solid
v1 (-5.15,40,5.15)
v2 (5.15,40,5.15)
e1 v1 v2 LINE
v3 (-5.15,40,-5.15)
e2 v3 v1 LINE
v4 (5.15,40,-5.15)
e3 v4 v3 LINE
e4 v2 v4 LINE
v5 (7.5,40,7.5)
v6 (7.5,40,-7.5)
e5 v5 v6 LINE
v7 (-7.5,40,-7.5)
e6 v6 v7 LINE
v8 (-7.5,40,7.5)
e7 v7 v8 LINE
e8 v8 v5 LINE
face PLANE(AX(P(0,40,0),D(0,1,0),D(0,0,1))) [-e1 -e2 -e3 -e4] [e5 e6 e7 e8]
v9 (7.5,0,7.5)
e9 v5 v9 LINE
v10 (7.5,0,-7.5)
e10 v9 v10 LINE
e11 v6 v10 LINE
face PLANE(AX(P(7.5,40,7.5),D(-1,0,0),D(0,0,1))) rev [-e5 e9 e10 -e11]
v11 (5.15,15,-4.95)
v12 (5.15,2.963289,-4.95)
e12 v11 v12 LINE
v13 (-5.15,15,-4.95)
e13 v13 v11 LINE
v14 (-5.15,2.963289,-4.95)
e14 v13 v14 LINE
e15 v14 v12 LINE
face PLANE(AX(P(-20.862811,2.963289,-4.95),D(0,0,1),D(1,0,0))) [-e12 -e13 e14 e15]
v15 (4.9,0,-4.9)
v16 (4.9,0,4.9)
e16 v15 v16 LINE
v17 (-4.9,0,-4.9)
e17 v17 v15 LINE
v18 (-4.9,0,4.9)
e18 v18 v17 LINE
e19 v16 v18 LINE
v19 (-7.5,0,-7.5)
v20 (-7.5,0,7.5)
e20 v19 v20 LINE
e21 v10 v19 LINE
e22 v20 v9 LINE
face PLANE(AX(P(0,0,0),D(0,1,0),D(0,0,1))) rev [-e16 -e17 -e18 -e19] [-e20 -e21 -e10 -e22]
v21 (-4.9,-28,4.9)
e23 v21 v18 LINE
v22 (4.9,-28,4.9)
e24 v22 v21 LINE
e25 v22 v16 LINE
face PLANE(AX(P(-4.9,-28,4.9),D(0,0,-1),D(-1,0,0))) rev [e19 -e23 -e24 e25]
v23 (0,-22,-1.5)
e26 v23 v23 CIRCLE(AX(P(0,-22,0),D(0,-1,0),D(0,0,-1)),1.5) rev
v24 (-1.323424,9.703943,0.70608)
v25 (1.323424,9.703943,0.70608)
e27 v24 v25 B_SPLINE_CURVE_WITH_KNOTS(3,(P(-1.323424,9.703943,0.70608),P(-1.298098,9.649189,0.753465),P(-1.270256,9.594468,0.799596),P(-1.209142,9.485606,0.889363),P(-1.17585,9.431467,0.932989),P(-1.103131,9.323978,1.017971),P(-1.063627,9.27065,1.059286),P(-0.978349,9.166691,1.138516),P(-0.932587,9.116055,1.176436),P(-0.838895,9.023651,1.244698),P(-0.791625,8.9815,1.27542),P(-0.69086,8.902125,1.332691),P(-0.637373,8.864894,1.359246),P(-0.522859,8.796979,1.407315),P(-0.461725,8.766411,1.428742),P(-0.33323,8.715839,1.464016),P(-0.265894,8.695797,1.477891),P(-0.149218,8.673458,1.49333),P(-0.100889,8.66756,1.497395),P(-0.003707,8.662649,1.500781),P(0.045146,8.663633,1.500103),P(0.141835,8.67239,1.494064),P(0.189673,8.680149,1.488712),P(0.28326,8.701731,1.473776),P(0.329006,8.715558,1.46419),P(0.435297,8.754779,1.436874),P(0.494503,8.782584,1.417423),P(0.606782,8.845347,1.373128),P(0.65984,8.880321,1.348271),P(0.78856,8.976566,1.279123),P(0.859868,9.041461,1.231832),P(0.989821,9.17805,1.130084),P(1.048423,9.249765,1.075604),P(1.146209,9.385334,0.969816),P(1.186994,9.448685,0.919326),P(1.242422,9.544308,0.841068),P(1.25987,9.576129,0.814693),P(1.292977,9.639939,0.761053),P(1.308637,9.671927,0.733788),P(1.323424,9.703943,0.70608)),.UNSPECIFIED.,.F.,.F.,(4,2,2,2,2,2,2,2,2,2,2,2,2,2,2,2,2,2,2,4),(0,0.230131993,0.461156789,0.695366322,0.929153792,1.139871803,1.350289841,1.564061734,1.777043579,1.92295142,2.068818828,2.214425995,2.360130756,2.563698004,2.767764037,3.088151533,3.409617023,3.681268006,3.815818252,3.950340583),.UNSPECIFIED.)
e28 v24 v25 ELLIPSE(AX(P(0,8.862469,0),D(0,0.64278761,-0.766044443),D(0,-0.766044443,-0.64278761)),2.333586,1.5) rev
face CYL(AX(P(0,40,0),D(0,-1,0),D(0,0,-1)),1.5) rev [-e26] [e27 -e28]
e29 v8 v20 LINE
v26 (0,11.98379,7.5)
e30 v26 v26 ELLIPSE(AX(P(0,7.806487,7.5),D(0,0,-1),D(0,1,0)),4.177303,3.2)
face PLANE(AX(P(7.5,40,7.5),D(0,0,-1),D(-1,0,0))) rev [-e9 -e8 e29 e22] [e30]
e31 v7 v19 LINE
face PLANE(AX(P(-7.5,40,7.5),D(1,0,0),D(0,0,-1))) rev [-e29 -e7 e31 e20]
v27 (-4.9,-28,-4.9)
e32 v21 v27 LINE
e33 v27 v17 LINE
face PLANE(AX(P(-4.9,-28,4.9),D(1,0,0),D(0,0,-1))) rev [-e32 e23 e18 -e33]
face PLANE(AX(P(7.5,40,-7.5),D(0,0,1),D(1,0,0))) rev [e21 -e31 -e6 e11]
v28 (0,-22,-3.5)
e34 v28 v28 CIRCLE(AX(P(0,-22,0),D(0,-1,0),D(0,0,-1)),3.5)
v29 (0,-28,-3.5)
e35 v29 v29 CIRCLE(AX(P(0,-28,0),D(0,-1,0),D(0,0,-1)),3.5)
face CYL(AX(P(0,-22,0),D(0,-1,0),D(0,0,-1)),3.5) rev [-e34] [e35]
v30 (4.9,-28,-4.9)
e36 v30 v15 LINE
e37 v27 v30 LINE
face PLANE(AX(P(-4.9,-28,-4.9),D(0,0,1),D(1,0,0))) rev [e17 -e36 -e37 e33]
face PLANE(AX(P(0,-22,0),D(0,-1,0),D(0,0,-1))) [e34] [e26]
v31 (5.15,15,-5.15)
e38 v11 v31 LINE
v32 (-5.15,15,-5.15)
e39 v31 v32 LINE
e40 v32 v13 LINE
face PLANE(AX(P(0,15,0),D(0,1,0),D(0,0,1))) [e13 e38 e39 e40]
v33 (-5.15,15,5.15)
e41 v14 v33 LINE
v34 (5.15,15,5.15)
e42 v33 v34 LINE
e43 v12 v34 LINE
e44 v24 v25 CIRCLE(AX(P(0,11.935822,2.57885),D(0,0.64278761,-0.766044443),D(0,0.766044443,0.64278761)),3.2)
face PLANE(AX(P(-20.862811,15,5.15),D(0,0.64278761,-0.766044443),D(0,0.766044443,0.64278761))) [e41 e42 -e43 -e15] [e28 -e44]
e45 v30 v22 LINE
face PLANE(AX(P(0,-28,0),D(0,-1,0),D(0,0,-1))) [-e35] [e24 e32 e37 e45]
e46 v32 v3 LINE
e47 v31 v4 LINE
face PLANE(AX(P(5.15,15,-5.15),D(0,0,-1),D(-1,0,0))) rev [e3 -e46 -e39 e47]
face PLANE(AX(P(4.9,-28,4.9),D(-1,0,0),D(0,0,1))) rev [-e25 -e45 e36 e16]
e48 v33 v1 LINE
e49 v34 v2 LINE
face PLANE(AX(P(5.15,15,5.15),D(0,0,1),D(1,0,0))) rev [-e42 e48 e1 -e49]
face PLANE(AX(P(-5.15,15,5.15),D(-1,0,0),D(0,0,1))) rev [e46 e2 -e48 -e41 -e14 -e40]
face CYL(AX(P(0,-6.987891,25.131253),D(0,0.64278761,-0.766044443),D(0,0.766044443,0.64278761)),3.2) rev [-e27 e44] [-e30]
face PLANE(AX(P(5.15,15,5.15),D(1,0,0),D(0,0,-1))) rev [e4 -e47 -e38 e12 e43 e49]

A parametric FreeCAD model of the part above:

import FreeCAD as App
import Part
import Sketcher

V = App.Vector
Q = App.Units.Quantity

doc = App.newDocument("Part")
body = doc.addObject("PartDesign::Body", "Body")

# Sketch on XZ plane
sketch1 = body.newObject("Sketcher::SketchObject", "Sketch")
sketch1.AttachmentSupport = (doc.getObject("XZ_Plane"), [""])
sketch1.MapMode = "FlatFace"
sketch1.addGeometry(Part.LineSegment(V(-8, -8, 0), V(-8, 8, 0)), False)
sketch1.addGeometry(Part.LineSegment(V(-8, 8, 0), V(8, 8, 0)), False)
sketch1.addGeometry(Part.LineSegment(V(8, 8, 0), V(8, -8, 0)), False)
sketch1.addGeometry(Part.LineSegment(V(8, -8, 0), V(-8, -8, 0)), False)
sketch1.addConstraint(Sketcher.Constraint("Coincident", 0, 2, 1, 1))
sketch1.addConstraint(Sketcher.Constraint("Coincident", 1, 2, 2, 1))
sketch1.addConstraint(Sketcher.Constraint("Coincident", 2, 2, 3, 1))
sketch1.addConstraint(Sketcher.Constraint("Coincident", 3, 2, 0, 1))
sketch1.addConstraint(Sketcher.Constraint("Vertical", 0))
sketch1.addConstraint(Sketcher.Constraint("Horizontal", 1))
sketch1.addConstraint(Sketcher.Constraint("Vertical", 2))
sketch1.addConstraint(Sketcher.Constraint("Horizontal", 3))
sketch1.addConstraint(Sketcher.Constraint("Symmetric", 0, 2, 2, 2, -1, 1))
sketch1.addConstraint(Sketcher.Constraint("Equal", 3, 0))
sketch1.addConstraint(Sketcher.Constraint("DistanceX", 1, 1, 1, 2, Q("15 mm")))
pad1 = body.newObject("PartDesign::Pad", "Pad")
pad1.Profile = sketch1
pad1.Length = 40
pad1.Reversed = True

# Sketch on XZ plane
sketch2 = body.newObject("Sketcher::SketchObject", "Sketch001")
sketch2.AttachmentSupport = (doc.getObject("XZ_Plane"), [""])
sketch2.MapMode = "FlatFace"
sketch2.addGeometry(Part.LineSegment(V(-5, 5, 0), V(-5, -5, 0)), False)
sketch2.addGeometry(Part.LineSegment(V(-5, -5, 0), V(5, -5, 0)), False)
sketch2.addGeometry(Part.LineSegment(V(5, -5, 0), V(5, 5, 0)), False)
sketch2.addGeometry(Part.LineSegment(V(5, 5, 0), V(-5, 5, 0)), False)
sketch2.addConstraint(Sketcher.Constraint("Coincident", 0, 2, 1, 1))
sketch2.addConstraint(Sketcher.Constraint("Coincident", 1, 2, 2, 1))
sketch2.addConstraint(Sketcher.Constraint("Coincident", 2, 2, 3, 1))
sketch2.addConstraint(Sketcher.Constraint("Coincident", 3, 2, 0, 1))
sketch2.addConstraint(Sketcher.Constraint("Vertical", 0))
sketch2.addConstraint(Sketcher.Constraint("Horizontal", 1))
sketch2.addConstraint(Sketcher.Constraint("Vertical", 2))
sketch2.addConstraint(Sketcher.Constraint("Horizontal", 3))
sketch2.addConstraint(Sketcher.Constraint("Symmetric", 0, 2, 2, 2, -1, 1))
sketch2.addConstraint(Sketcher.Constraint("Equal", 3, 0))
sketch2.addConstraint(Sketcher.Constraint("DistanceX", 1, 1, 1, 2, Q("9.8 mm")))
pad2 = body.newObject("PartDesign::Pad", "Pad001")
pad2.Profile = sketch2
pad2.Length = 28

# Sketch on XZ plane
sketch3 = body.newObject("Sketcher::SketchObject", "Sketch002")
sketch3.AttachmentSupport = (doc.getObject("XZ_Plane"), [""])
sketch3.MapMode = "FlatFace"
sketch3.AttachmentOffset = App.Placement(V(0, 0, 28), App.Rotation())
sketch3.addGeometry(Part.Circle(V(0, 0, 0), V(0, 0, 1), 1.5), False)
sketch3.addConstraint(Sketcher.Constraint("Coincident", 0, 3, -1, 1))
sketch3.addConstraint(Sketcher.Constraint("Diameter", 0, Q("3 mm")))
pocket1 = body.newObject("PartDesign::Pocket", "Pocket")
pocket1.Profile = sketch3
pocket1.Type = "ThroughAll"

# Sketch on XZ plane
sketch4 = body.newObject("Sketcher::SketchObject", "Sketch003")
sketch4.AttachmentSupport = (doc.getObject("XZ_Plane"), [""])
sketch4.MapMode = "FlatFace"
sketch4.AttachmentOffset = App.Placement(V(0, 0, 28), App.Rotation())
sketch4.addGeometry(Part.Circle(V(0, 0, 0), V(0, 0, 1), 3.5), False)
sketch4.addConstraint(Sketcher.Constraint("Coincident", 0, 3, -1, 1))
sketch4.addConstraint(Sketcher.Constraint("Diameter", 0, Q("7 mm")))
pocket2 = body.newObject("PartDesign::Pocket", "Pocket001")
pocket2.Profile = sketch4
pocket2.Length = 6

# Sketch on XZ plane
sketch5 = body.newObject("Sketcher::SketchObject", "Sketch004")
sketch5.AttachmentSupport = (doc.getObject("XZ_Plane"), [""])
sketch5.MapMode = "FlatFace"
sketch5.AttachmentOffset = App.Placement(V(0, 0, -40), App.Rotation())
sketch5.addGeometry(Part.LineSegment(V(-5, -5, 0), V(-5, 5, 0)), False)
sketch5.addGeometry(Part.LineSegment(V(-5, 5, 0), V(5, 5, 0)), False)
sketch5.addGeometry(Part.LineSegment(V(5, 5, 0), V(5, -5, 0)), False)
sketch5.addGeometry(Part.LineSegment(V(5, -5, 0), V(-5, -5, 0)), False)
sketch5.addConstraint(Sketcher.Constraint("Coincident", 0, 2, 1, 1))
sketch5.addConstraint(Sketcher.Constraint("Coincident", 1, 2, 2, 1))
sketch5.addConstraint(Sketcher.Constraint("Coincident", 2, 2, 3, 1))
sketch5.addConstraint(Sketcher.Constraint("Coincident", 3, 2, 0, 1))
sketch5.addConstraint(Sketcher.Constraint("Vertical", 0))
sketch5.addConstraint(Sketcher.Constraint("Horizontal", 1))
sketch5.addConstraint(Sketcher.Constraint("Vertical", 2))
sketch5.addConstraint(Sketcher.Constraint("Horizontal", 3))
sketch5.addConstraint(Sketcher.Constraint("Symmetric", 0, 2, 2, 2, -1, 1))
sketch5.addConstraint(Sketcher.Constraint("Equal", 3, 0))
sketch5.addConstraint(Sketcher.Constraint("DistanceX", 1, 1, 1, 2, Q("10.3 mm")))
pocket3 = body.newObject("PartDesign::Pocket", "Pocket002")
pocket3.Profile = sketch5
pocket3.Length = 25
pocket3.Reversed = True

# Sketch on YZ plane
sketch6 = body.newObject("Sketcher::SketchObject", "Sketch005")
sketch6.AttachmentSupport = (doc.getObject("YZ_Plane"), [""])
sketch6.MapMode = "FlatFace"
sketch6.AttachmentOffset = App.Placement(V(0, 0, 5.15), App.Rotation())
sketch6.addGeometry(Part.LineSegment(V(3, -5, 0), V(15, 5, 0)), False)
sketch6.addGeometry(Part.LineSegment(V(15, 5, 0), V(15, -5, 0)), False)
sketch6.addGeometry(Part.LineSegment(V(15, -5, 0), V(3, -5, 0)), False)
sketch6.addConstraint(Sketcher.Constraint("Coincident", 0, 2, 1, 1))
sketch6.addConstraint(Sketcher.Constraint("Coincident", 1, 2, 2, 1))
sketch6.addConstraint(Sketcher.Constraint("Coincident", 2, 2, 0, 1))
sketch6.addConstraint(Sketcher.Constraint("Vertical", 1))
sketch6.addConstraint(Sketcher.Constraint("Horizontal", 2))
sketch6.addConstraint(Sketcher.Constraint("Angle", 0, Q("40 deg")))
sketch6.addConstraint(Sketcher.Constraint("DistanceY", 1, 2, 1, 1, Q("10.1 mm")))
sketch6.addConstraint(Sketcher.Constraint("DistanceX", -1, 1, 0, 2, Q("15 mm")))
sketch6.addConstraint(Sketcher.Constraint("DistanceY", -1, 1, 0, 2, Q("5.15 mm")))
pocket4 = body.newObject("PartDesign::Pocket", "Pocket003")
pocket4.Profile = sketch6
pocket4.Length = 10.3

# Sketch on an angled plane
sketch7 = body.newObject("Sketcher::SketchObject", "Sketch006")
sketch7.Placement = App.Placement(V(0, 3.661759, -4.363914), App.Rotation(V(-1, 0, 0), V(0, 0.766044443, 0.64278761), V(0, 0.64278761, -0.766044443), "ZXY"))
sketch7.addGeometry(Part.Circle(V(0, 10.8, 0), V(0, 0, 1), 3.2), False)
sketch7.addConstraint(Sketcher.Constraint("PointOnObject", 0, 3, -2))
sketch7.addConstraint(Sketcher.Constraint("Diameter", 0, Q("6.4 mm")))
sketch7.addConstraint(Sketcher.Constraint("DistanceY", -1, 1, 0, 3, Q("10.801023 mm")))
pocket5 = body.newObject("PartDesign::Pocket", "Pocket004")
pocket5.Profile = sketch7
pocket5.Type = "ThroughAll"

doc.recompute()
